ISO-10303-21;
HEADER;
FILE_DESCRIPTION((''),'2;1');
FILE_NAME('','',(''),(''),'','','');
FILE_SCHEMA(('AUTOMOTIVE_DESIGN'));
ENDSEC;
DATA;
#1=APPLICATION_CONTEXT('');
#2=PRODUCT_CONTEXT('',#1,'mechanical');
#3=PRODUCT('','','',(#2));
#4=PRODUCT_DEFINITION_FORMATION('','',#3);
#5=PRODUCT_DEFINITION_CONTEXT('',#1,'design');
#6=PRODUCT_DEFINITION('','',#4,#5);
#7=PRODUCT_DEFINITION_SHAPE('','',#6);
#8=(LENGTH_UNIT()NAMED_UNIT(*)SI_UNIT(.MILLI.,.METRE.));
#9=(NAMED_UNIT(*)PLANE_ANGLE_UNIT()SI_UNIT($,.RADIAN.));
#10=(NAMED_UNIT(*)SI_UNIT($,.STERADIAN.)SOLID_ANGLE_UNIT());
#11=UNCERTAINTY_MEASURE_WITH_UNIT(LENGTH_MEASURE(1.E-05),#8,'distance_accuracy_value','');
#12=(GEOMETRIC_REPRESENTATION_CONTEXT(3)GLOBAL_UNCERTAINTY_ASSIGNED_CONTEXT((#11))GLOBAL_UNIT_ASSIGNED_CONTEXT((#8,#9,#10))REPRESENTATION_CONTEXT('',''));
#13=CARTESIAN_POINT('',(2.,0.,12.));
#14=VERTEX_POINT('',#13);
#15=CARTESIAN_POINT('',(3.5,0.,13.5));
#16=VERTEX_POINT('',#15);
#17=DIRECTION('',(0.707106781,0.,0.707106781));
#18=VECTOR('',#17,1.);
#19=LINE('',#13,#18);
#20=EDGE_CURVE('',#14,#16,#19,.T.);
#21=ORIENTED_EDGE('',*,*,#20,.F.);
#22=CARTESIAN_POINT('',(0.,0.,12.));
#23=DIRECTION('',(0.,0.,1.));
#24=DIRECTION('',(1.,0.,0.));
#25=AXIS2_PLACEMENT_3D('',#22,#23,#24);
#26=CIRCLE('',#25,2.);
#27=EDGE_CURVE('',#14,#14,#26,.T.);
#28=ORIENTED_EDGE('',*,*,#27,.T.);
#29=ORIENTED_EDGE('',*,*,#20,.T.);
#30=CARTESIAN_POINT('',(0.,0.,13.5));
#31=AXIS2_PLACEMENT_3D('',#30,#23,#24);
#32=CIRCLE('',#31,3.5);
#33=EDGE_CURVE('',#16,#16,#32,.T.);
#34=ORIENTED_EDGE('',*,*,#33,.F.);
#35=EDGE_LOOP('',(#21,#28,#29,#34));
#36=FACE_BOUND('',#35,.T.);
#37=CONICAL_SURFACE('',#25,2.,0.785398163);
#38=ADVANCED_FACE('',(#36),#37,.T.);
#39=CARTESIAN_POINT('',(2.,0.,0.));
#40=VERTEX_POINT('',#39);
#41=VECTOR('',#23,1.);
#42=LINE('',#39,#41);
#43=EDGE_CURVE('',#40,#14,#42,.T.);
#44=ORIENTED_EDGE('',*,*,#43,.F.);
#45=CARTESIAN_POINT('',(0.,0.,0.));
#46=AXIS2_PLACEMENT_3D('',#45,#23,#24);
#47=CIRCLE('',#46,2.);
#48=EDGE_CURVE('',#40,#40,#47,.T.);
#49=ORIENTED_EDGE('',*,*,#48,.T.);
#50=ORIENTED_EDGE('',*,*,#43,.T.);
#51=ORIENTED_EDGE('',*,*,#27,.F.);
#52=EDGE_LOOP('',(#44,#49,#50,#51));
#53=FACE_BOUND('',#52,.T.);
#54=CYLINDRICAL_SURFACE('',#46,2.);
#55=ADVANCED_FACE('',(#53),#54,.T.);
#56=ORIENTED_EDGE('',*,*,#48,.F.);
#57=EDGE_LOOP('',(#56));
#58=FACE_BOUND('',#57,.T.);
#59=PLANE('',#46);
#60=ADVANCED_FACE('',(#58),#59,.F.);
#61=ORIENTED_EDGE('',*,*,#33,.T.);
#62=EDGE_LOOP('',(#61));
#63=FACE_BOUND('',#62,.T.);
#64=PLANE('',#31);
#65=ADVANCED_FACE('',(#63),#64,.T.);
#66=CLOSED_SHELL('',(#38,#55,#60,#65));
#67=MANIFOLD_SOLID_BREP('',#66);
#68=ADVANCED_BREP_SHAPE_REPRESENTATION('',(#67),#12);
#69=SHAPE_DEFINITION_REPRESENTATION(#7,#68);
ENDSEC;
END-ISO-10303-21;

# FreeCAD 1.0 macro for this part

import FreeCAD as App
import Part
import Sketcher
from FreeCAD import Vector
Q = App.Units.Quantity


def add_polygon(sketch, points):
    """Adds a closed chain of lines whose ends are joined by coincident constraints."""
    first, n = sketch.GeometryCount, len(points)
    for a, b in zip(points, points[1:] + points[:1]):
        sketch.addGeometry(Part.LineSegment(App.Vector(*a, 0), App.Vector(*b, 0)), False)
    for i in range(n):
        sketch.addConstraint(Sketcher.Constraint("Coincident", first + i, 2, first + (i + 1) % n, 1))

doc = App.newDocument("Part")
params = doc.addObject("Spreadsheet::Sheet", "Params")
for row, (alias, value) in enumerate([
    ("sketch1_width", "2 mm"),
    ("sketch1_height", "12 mm"),
    ("sketch1_width2", "3.5 mm"),
    ("revolution_angle", "360 deg"),
], start=1):
    params.set(f"A{row}", alias)
    params.set(f"B{row}", "=" + value)
    params.setAlias(f"B{row}", alias)

body = doc.addObject("PartDesign::Body", "Body")

# Sketch on XZ plane
sketch1 = body.newObject("Sketcher::SketchObject", "Sketch")
sketch1.AttachmentSupport = (doc.getObject("XZ_Plane"), [""])
sketch1.MapMode = "FlatFace"
add_polygon(sketch1, [(0, 0), (2, 0), (2, 12), (3.5, 13.5), (0, 13.5)])  # lines 0-4
sketch1.addConstraint(Sketcher.Constraint("Horizontal", 0))
sketch1.addConstraint(Sketcher.Constraint("Vertical", 1))
sketch1.addConstraint(Sketcher.Constraint("Horizontal", 3))
sketch1.addConstraint(Sketcher.Constraint("Vertical", 4))
sketch1.addConstraint(Sketcher.Constraint("Coincident", 4, 2, -1, 1))
sketch1.addConstraint(Sketcher.Constraint("DistanceX", 0, 1, 0, 2, Q("2 mm")))
sketch1.addConstraint(Sketcher.Constraint("DistanceY", 1, 1, 1, 2, Q("12 mm")))
sketch1.addConstraint(Sketcher.Constraint("Angle", 2, Q("45 deg")))
sketch1.addConstraint(Sketcher.Constraint("DistanceX", 3, 2, 3, 1, Q("3.5 mm")))
sketch1.setExpression("Constraints[10]", "Params.sketch1_width")
sketch1.setExpression("Constraints[11]", "Params.sketch1_height")
sketch1.setExpression("Constraints[13]", "Params.sketch1_width2")
revolution = body.newObject("PartDesign::Revolution", "Revolution")
revolution.Profile = sketch1
revolution.ReferenceAxis = (sketch1, ["V_Axis"])
revolution.setExpression("Angle", "Params.revolution_angle")

doc.recompute()
